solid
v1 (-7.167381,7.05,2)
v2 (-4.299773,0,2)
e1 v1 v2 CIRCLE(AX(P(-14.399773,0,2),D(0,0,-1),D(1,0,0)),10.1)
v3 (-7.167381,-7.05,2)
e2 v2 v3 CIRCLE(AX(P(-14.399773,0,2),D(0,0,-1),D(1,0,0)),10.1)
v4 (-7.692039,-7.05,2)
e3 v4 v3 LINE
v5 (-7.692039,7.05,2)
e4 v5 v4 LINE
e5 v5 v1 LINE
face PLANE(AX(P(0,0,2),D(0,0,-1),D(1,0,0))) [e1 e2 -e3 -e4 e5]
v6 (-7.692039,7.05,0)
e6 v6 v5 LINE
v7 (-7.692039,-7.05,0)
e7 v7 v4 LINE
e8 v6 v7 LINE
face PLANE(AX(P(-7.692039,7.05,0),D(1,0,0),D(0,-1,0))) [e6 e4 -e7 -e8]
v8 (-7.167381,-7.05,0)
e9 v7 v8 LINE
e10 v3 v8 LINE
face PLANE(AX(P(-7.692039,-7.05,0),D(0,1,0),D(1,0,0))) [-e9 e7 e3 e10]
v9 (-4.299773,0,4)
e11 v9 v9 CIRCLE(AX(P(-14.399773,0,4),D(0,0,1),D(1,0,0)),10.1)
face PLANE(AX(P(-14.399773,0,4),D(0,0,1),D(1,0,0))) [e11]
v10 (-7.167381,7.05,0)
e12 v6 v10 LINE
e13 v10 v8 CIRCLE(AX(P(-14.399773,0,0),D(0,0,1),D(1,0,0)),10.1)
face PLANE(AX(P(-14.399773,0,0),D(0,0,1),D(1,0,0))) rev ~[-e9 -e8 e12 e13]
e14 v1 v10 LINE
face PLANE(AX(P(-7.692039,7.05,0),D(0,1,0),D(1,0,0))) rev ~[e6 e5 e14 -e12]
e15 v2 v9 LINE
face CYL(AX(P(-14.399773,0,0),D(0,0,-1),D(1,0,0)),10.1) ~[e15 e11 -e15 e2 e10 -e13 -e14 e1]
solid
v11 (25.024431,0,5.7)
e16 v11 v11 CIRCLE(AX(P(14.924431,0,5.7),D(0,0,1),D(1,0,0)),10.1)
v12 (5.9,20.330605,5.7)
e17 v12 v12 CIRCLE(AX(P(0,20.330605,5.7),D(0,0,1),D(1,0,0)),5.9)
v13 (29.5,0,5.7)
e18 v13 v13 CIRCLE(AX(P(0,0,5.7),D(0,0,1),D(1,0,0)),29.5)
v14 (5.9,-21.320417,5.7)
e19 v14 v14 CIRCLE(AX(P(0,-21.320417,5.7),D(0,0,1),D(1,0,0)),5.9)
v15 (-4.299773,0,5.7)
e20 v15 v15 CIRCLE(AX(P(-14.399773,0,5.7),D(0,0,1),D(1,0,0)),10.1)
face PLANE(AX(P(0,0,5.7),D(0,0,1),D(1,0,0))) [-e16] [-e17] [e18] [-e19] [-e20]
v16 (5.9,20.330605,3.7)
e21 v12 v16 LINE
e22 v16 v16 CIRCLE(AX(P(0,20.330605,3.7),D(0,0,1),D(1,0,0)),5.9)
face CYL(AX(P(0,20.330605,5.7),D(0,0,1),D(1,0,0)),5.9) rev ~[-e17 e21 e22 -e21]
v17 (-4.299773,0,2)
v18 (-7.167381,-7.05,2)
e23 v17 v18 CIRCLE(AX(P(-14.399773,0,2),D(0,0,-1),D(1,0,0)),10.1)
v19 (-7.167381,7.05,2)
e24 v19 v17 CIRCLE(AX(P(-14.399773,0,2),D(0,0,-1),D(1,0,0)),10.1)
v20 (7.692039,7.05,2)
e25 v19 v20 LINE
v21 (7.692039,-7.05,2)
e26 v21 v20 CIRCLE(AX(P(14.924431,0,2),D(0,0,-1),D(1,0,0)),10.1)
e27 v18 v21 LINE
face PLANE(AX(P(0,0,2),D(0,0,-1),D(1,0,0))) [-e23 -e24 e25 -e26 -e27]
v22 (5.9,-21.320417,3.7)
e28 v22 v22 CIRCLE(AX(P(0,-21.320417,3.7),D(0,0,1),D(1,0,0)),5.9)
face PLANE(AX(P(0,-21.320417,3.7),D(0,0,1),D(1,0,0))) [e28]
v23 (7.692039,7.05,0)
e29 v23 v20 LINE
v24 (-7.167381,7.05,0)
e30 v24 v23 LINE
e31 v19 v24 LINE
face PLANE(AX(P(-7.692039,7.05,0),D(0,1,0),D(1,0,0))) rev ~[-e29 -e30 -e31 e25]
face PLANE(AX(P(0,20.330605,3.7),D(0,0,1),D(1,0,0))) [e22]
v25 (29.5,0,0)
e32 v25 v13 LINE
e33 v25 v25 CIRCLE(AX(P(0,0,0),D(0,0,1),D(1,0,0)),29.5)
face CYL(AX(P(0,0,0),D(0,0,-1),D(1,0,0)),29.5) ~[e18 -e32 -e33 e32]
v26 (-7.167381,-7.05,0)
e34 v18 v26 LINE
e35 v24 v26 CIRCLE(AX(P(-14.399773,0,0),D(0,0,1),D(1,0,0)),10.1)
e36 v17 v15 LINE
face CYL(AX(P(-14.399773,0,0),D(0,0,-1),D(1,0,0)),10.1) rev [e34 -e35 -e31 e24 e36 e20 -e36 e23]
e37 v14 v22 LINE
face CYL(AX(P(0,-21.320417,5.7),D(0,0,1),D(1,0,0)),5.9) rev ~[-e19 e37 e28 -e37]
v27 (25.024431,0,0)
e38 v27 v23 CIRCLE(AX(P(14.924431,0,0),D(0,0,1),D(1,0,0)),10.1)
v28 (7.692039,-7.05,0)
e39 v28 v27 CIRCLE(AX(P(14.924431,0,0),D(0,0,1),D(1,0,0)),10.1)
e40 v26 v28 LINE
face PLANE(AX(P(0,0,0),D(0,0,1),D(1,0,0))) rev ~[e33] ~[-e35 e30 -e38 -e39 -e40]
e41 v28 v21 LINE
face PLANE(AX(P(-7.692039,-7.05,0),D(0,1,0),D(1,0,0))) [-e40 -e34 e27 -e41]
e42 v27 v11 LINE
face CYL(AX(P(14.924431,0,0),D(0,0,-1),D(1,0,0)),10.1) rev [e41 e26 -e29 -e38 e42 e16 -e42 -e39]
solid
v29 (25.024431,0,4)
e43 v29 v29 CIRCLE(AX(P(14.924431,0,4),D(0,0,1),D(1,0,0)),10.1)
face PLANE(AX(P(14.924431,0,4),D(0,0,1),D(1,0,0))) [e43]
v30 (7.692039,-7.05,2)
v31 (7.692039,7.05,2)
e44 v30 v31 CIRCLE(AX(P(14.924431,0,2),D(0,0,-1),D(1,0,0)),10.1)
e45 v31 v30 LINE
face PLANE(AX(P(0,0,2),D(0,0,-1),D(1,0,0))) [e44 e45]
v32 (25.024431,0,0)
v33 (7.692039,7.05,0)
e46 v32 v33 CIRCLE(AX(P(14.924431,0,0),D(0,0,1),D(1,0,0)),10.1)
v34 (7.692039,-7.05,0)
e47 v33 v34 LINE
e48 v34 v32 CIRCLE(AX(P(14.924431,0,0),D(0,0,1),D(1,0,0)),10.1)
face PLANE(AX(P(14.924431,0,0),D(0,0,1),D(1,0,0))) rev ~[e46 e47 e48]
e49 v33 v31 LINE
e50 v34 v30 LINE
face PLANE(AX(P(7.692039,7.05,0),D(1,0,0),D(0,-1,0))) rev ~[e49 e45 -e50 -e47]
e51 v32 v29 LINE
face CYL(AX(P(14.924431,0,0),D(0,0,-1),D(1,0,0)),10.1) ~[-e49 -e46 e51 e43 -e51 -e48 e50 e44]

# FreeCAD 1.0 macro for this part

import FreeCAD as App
import Part
import Sketcher


def add_polygon(sketch, points):
    """Adds a closed chain of lines whose ends are joined by coincident constraints."""
    first, n = sketch.GeometryCount, len(points)
    for a, b in zip(points, points[1:] + points[:1]):
        sketch.addGeometry(Part.LineSegment(App.Vector(*a, 0), App.Vector(*b, 0)), False)
    for i in range(n):
        sketch.addConstraint(Sketcher.Constraint("Coincident", first + i, 2, first + (i + 1) % n, 1))

doc = App.newDocument("Part")
body = doc.addObject("PartDesign::Body", "Body")
body.AllowCompound = True

sketch1 = body.newObject("Sketcher::SketchObject", "Sketch")
sketch1.AttachmentSupport = (doc.getObject("XY_Plane"), [""])
sketch1.MapMode = "FlatFace"
sketch1.addGeometry(Part.Circle(App.Vector(-14, 0, 0), App.Vector(0, 0, 1), 10), False)
sketch1.addGeometry(Part.Circle(App.Vector(15, 0, 0), App.Vector(0, 0, 1), 10), False)
sketch1.addConstraint(Sketcher.Constraint("Equal", 0, 1))
sketch1.addConstraint(Sketcher.Constraint("PointOnObject", 0, 3, -1))
sketch1.addConstraint(Sketcher.Constraint("PointOnObject", 1, 3, -1))
sketch1.addConstraint(Sketcher.Constraint("Diameter", 0, 20.2))
sketch1.addConstraint(Sketcher.Constraint("DistanceX", -1, 1, 1, 3, 14.924431))
sketch1.addConstraint(Sketcher.Constraint("DistanceX", 0, 3, -1, 1, 14.399773))
pad1 = body.newObject("PartDesign::Pad", "Pad")
pad1.Profile = sketch1
pad1.Length = 4
body2 = doc.addObject("PartDesign::Body", "Body001")

sketch2 = body2.newObject("Sketcher::SketchObject", "Sketch001")
sketch2.AttachmentSupport = (doc.getObject("XY_Plane001"), [""])
sketch2.MapMode = "FlatFace"
sketch2.addGeometry(Part.Circle(App.Vector(0, 0, 0), App.Vector(0, 0, 1), 30), False)
sketch2.addGeometry(Part.Circle(App.Vector(-14, 0, 0), App.Vector(0, 0, 1), 10), False)
sketch2.addGeometry(Part.Circle(App.Vector(15, 0, 0), App.Vector(0, 0, 1), 10), False)
sketch2.addConstraint(Sketcher.Constraint("Coincident", 0, 3, -1, 1))
sketch2.addConstraint(Sketcher.Constraint("Equal", 1, 2))
sketch2.addConstraint(Sketcher.Constraint("PointOnObject", 1, 3, -1))
sketch2.addConstraint(Sketcher.Constraint("PointOnObject", 2, 3, -1))
sketch2.addConstraint(Sketcher.Constraint("Diameter", 0, 59.0))
sketch2.addConstraint(Sketcher.Constraint("Diameter", 1, 20.2))
sketch2.addConstraint(Sketcher.Constraint("DistanceX", -1, 1, 2, 3, 14.924431))
sketch2.addConstraint(Sketcher.Constraint("DistanceX", 1, 3, -1, 1, 14.399773))
pad2 = body2.newObject("PartDesign::Pad", "Pad001")
pad2.Profile = sketch2
pad2.Length = 5.7

sketch3 = body2.newObject("Sketcher::SketchObject", "Sketch002")
sketch3.AttachmentSupport = (doc.getObject("XY_Plane001"), [""])
sketch3.MapMode = "FlatFace"
sketch3.AttachmentOffset = App.Placement(App.Vector(0, 0, 5.7), App.Rotation())
sketch3.addGeometry(Part.Circle(App.Vector(0, 20, 0), App.Vector(0, 0, 1), 6), False)
sketch3.addGeometry(Part.Circle(App.Vector(0, -21, 0), App.Vector(0, 0, 1), 6), False)
sketch3.addConstraint(Sketcher.Constraint("Equal", 0, 1))
sketch3.addConstraint(Sketcher.Constraint("PointOnObject", 0, 3, -2))
sketch3.addConstraint(Sketcher.Constraint("PointOnObject", 1, 3, -2))
sketch3.addConstraint(Sketcher.Constraint("Diameter", 0, 11.8))
sketch3.addConstraint(Sketcher.Constraint("DistanceY", 1, 3, 0, 3, 41.651022))
sketch3.addConstraint(Sketcher.Constraint("DistanceY", -1, 1, 0, 3, 20.330605))
pocket1 = body2.newObject("PartDesign::Pocket", "Pocket")
pocket1.Profile = sketch3
pocket1.Length = 2
body3 = doc.addObject("PartDesign::Body", "Body002")

sketch4 = body3.newObject("Sketcher::SketchObject", "Sketch003")
sketch4.AttachmentSupport = (doc.getObject("XY_Plane002"), [""])
sketch4.MapMode = "FlatFace"
add_polygon(sketch4, [(-8, -7), (-8, 7), (8, 7), (8, -7)])
sketch4.addConstraint(Sketcher.Constraint("Vertical", 0))
sketch4.addConstraint(Sketcher.Constraint("Horizontal", 1))
sketch4.addConstraint(Sketcher.Constraint("Vertical", 2))
sketch4.addConstraint(Sketcher.Constraint("Horizontal", 3))
sketch4.addConstraint(Sketcher.Constraint("Symmetric", 0, 2, 2, 2, -1, 1))
sketch4.addConstraint(Sketcher.Constraint("DistanceY", 0, 1, 0, 2, 14.1))
sketch4.addConstraint(Sketcher.Constraint("DistanceX", 1, 1, 1, 2, 15.384078))
pad3 = body3.newObject("PartDesign::Pad", "Pad002")
pad3.Profile = sketch4
pad3.Length = 2
body.AllowCompound = True
doc.recompute()

body4 = doc.addObject("PartDesign::Body", "Body003")
body4.BaseFeature = body3
boolean = body.newObject("PartDesign::Boolean", "Boolean")
boolean.Type = "Cut"
boolean.addObjects([body4])
doc.recompute()

boolean2 = body2.newObject("PartDesign::Boolean", "Boolean001")
boolean2.Type = "Cut"
boolean2.addObjects([body3])

doc.recompute()
